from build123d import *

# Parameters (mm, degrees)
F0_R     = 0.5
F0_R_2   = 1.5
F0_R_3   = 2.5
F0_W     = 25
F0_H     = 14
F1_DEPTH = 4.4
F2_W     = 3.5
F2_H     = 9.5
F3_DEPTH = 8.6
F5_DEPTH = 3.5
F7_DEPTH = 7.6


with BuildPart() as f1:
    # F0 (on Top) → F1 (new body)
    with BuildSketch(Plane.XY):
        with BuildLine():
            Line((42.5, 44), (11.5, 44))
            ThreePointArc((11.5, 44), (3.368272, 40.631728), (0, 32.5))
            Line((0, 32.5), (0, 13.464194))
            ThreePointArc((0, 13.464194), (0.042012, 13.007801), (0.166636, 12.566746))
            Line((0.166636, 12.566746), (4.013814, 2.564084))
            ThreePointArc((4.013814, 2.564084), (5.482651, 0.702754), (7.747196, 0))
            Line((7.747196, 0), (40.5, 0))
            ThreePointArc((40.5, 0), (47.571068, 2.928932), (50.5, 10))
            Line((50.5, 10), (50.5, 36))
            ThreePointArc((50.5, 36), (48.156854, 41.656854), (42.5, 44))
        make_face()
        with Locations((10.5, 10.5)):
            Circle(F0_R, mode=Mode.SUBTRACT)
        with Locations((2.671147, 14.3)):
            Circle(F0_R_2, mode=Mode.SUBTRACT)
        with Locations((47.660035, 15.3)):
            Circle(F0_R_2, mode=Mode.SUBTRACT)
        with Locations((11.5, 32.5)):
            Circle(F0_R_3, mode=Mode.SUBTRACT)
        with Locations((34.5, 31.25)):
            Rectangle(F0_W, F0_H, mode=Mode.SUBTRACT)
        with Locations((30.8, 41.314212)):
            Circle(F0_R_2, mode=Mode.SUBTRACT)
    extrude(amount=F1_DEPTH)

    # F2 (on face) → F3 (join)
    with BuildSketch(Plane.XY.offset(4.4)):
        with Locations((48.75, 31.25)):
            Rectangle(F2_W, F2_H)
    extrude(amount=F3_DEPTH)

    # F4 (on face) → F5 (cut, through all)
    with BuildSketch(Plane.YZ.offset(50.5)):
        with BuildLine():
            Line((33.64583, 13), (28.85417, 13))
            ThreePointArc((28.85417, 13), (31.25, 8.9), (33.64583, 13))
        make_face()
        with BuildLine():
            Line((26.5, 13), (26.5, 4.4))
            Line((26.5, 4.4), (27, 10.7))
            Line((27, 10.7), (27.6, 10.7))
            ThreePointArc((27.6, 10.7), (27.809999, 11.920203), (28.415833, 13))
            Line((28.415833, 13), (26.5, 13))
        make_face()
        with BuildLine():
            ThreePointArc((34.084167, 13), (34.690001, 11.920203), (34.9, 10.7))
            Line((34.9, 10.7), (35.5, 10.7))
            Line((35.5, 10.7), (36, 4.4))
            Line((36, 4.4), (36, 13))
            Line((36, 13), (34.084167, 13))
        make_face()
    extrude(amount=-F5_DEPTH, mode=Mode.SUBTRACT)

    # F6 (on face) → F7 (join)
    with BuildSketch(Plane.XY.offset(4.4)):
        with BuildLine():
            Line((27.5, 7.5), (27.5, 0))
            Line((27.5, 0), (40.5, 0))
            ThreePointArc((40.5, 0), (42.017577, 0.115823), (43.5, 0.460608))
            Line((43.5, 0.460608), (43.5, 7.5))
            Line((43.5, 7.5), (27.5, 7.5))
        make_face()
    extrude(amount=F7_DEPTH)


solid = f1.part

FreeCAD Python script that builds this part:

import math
import FreeCAD as App
import Part
import Sketcher

doc = App.newDocument("Part")
body = doc.addObject("PartDesign::Body", "Body")

sketch1 = doc.addObject("Sketcher::SketchObject", "Sketch")
body.addObject(sketch1)
sketch1.AttachmentSupport = (doc.XY_Plane, [""])
sketch1.MapMode = "FlatFace"
sketch1.addGeometry([
    Part.LineSegment(App.Vector(42.5, 44, 0), App.Vector(11.5, 44, 0)),
    Part.ArcOfCircle(Part.Circle(App.Vector(11.5, 32.5, 0), App.Vector(0, 0, 1), 11.5), math.radians(90), math.radians(180)),
    Part.LineSegment(App.Vector(0, 32.5, 0), App.Vector(0, 13.464194, 0)),
    Part.ArcOfCircle(Part.Circle(App.Vector(2.500008, 13.464195, 0), App.Vector(0, 0, 1), 2.500008), math.radians(-179.999973), math.radians(-158.962521)),
    Part.LineSegment(App.Vector(0.166636, 12.566746, 0), App.Vector(4.013814, 2.564084, 0)),
    Part.ArcOfCircle(Part.Circle(App.Vector(7.747197, 4.000001, 0), App.Vector(0, 0, 1), 4.000001), math.radians(-158.962481), math.radians(-90.000021)),
    Part.LineSegment(App.Vector(7.747196, 0, 0), App.Vector(40.5, 0, 0)),
    Part.ArcOfCircle(Part.Circle(App.Vector(40.500001, 9.999999, 0), App.Vector(0, 0, 1), 9.999999), math.radians(-90.000004), math.radians(0.000004)),
    Part.LineSegment(App.Vector(50.5, 10, 0), App.Vector(50.5, 36, 0)),
    Part.ArcOfCircle(Part.Circle(App.Vector(42.499999, 35.999999, 0), App.Vector(0, 0, 1), 8.000001), math.radians(0.000006), math.radians(89.999994)),
    Part.Circle(App.Vector(10.5, 10.5, 0), App.Vector(0, 0, 1), 0.5),
    Part.Circle(App.Vector(2.671147, 14.3, 0), App.Vector(0, 0, 1), 1.5),
    Part.Circle(App.Vector(47.660035, 15.3, 0), App.Vector(0, 0, 1), 1.5),
    Part.Circle(App.Vector(11.5, 32.5, 0), App.Vector(0, 0, 1), 2.5),
    Part.LineSegment(App.Vector(47, 24.25, 0), App.Vector(22, 24.25, 0)),
    Part.LineSegment(App.Vector(22, 24.25, 0), App.Vector(22, 38.25, 0)),
    Part.LineSegment(App.Vector(22, 38.25, 0), App.Vector(47, 38.25, 0)),
    Part.LineSegment(App.Vector(47, 38.25, 0), App.Vector(47, 24.25, 0)),
    Part.Circle(App.Vector(30.8, 41.314212, 0), App.Vector(0, 0, 1), 1.5),
], False)
sketch1.addConstraint([
    Sketcher.Constraint("Tangent", 0, 2, 1, 1),
    Sketcher.Constraint("Tangent", 1, 2, 2, 1),
    Sketcher.Constraint("Tangent", 2, 2, 3, 1),
    Sketcher.Constraint("Tangent", 3, 2, 4, 1),
    Sketcher.Constraint("Tangent", 4, 2, 5, 1),
    Sketcher.Constraint("Tangent", 5, 2, 6, 1),
    Sketcher.Constraint("Tangent", 6, 2, 7, 1),
    Sketcher.Constraint("Tangent", 7, 2, 8, 1),
    Sketcher.Constraint("Tangent", 8, 2, 9, 1),
    Sketcher.Constraint("Tangent", 9, 2, 0, 1),
    Sketcher.Constraint("Coincident", 14, 2, 15, 1),
    Sketcher.Constraint("Coincident", 15, 2, 16, 1),
    Sketcher.Constraint("Coincident", 16, 2, 17, 1),
    Sketcher.Constraint("Coincident", 17, 2, 14, 1),
    Sketcher.Constraint("Horizontal", 0),
    Sketcher.Constraint("Vertical", 2),
    Sketcher.Constraint("Horizontal", 6),
    Sketcher.Constraint("Vertical", 8),
    Sketcher.Constraint("Horizontal", 14),
    Sketcher.Constraint("Vertical", 15),
    Sketcher.Constraint("Horizontal", 16),
    Sketcher.Constraint("Vertical", 17),
    Sketcher.Constraint("Coincident", 13, 3, 1, 3),
    Sketcher.Constraint("Equal", 11, 12),
    Sketcher.Constraint("Equal", 12, 18),
    Sketcher.Constraint("PointOnObject", 1, 2, -2),
    Sketcher.Constraint("PointOnObject", 5, 2, -1),
    Sketcher.Constraint("Diameter", 10, 1.0),
    Sketcher.Constraint("Diameter", 11, 3.0),
    Sketcher.Constraint("Diameter", 13, 5.0),
    Sketcher.Constraint("Radius", 5, 4.000001),
    Sketcher.Constraint("Radius", 7, 9.999999),
    Sketcher.Constraint("Radius", 9, 8.000001),
    Sketcher.Constraint("Radius", 1, 11.5),
    Sketcher.Constraint("DistanceX", 0, 2, 0, 1, 31.0),
    Sketcher.Constraint("DistanceX", 14, 2, 14, 1, 25.0),
    Sketcher.Constraint("DistanceY", 8, 1, 8, 2, 26.0),
    Sketcher.Constraint("DistanceY", 15, 1, 15, 2, 14.0),
    Sketcher.Constraint("DistanceX", -1, 1, 14, 2, 22.0),
    Sketcher.Constraint("DistanceX", 10, 3, 1, 3, 1.0),
    Sketcher.Constraint("DistanceY", 10, 3, 1, 3, 22.0),
    Sketcher.Constraint("DistanceY", -1, 1, 11, 3, 14.3),
    Sketcher.Constraint("DistanceY", -1, 1, 12, 3, 15.3),
    Sketcher.Constraint("DistanceX", -1, 1, 18, 3, 30.8),
    Sketcher.Constraint("DistanceY", -1, 1, 14, 2, 24.25),
    Sketcher.Constraint("Radius", 3, 2.500008),
    Sketcher.Constraint("DistanceX", 5, 3, 9, 3, 34.752802),
    Sketcher.Constraint("DistanceY", 2, 2, 2, 1, 19.035806),
    Sketcher.Constraint("DistanceY", -1, 1, 18, 3, 41.314212),
    Sketcher.Constraint("DistanceX", 3, 3, 11, 3, 0.171139),
    Sketcher.Constraint("DistanceX", -1, 1, 12, 3, 47.660035),
])
pad1 = doc.addObject("PartDesign::Pad", "Pad")
body.addObject(pad1)
pad1.Profile = sketch1
pad1.Length = 4.4

sketch2 = doc.addObject("Sketcher::SketchObject", "Sketch001")
body.addObject(sketch2)
sketch2.AttachmentSupport = (doc.XY_Plane, [""])
sketch2.MapMode = "FlatFace"
sketch2.AttachmentOffset = App.Placement(App.Vector(0, 0, 4.4), App.Rotation())
sketch2.addGeometry([
    Part.LineSegment(App.Vector(47, 36, 0), App.Vector(47, 26.5, 0)),
    Part.LineSegment(App.Vector(47, 26.5, 0), App.Vector(50.5, 26.5, 0)),
    Part.LineSegment(App.Vector(50.5, 26.5, 0), App.Vector(50.5, 36, 0)),
    Part.LineSegment(App.Vector(50.5, 36, 0), App.Vector(47, 36, 0)),
], False)
sketch2.addConstraint([
    Sketcher.Constraint("Coincident", 0, 2, 1, 1),
    Sketcher.Constraint("Coincident", 1, 2, 2, 1),
    Sketcher.Constraint("Coincident", 2, 2, 3, 1),
    Sketcher.Constraint("Coincident", 3, 2, 0, 1),
    Sketcher.Constraint("Vertical", 0),
    Sketcher.Constraint("Horizontal", 1),
    Sketcher.Constraint("Vertical", 2),
    Sketcher.Constraint("Horizontal", 3),
    Sketcher.Constraint("DistanceX", 1, 1, 1, 2, 3.5),
    Sketcher.Constraint("DistanceY", 0, 2, 0, 1, 9.5),
    Sketcher.Constraint("DistanceX", -1, 1, 0, 2, 47.0),
    Sketcher.Constraint("DistanceY", -1, 1, 2, 2, 36.0),
])
pad2 = doc.addObject("PartDesign::Pad", "Pad001")
body.addObject(pad2)
pad2.Profile = sketch2
pad2.Length = 8.6

sketch3 = doc.addObject("Sketcher::SketchObject", "Sketch002")
body.addObject(sketch3)
sketch3.AttachmentSupport = (doc.YZ_Plane, [""])
sketch3.MapMode = "FlatFace"
sketch3.AttachmentOffset = App.Placement(App.Vector(0, 0, 50.5), App.Rotation())
sketch3.addGeometry([
    Part.LineSegment(App.Vector(33.64583, 13, 0), App.Vector(28.85417, 13, 0)),
    Part.ArcOfCircle(Part.Circle(App.Vector(31.25, 11.65, 0), App.Vector(0, 0, 1), 2.75), math.radians(150.599655), math.radians(389.400345)),
    Part.LineSegment(App.Vector(26.5, 13, 0), App.Vector(26.5, 4.4, 0)),
    Part.LineSegment(App.Vector(26.5, 4.4, 0), App.Vector(27, 10.7, 0)),
    Part.LineSegment(App.Vector(27, 10.7, 0), App.Vector(27.6, 10.7, 0)),
    Part.ArcOfCircle(Part.Circle(App.Vector(31.249998, 10.700001, 0), App.Vector(0, 0, 1), 3.649998), math.radians(140.939771), math.radians(180.00002)),
    Part.LineSegment(App.Vector(28.415833, 13, 0), App.Vector(26.5, 13, 0)),
    Part.ArcOfCircle(Part.Circle(App.Vector(31.250002, 10.700001, 0), App.Vector(0, 0, 1), 3.649998), math.radians(-0.00002), math.radians(39.060229)),
    Part.LineSegment(App.Vector(34.9, 10.7, 0), App.Vector(35.5, 10.7, 0)),
    Part.LineSegment(App.Vector(35.5, 10.7, 0), App.Vector(36, 4.4, 0)),
    Part.LineSegment(App.Vector(36, 4.4, 0), App.Vector(36, 13, 0)),
    Part.LineSegment(App.Vector(36, 13, 0), App.Vector(34.084167, 13, 0)),
], False)
sketch3.addConstraint([
    Sketcher.Constraint("Coincident", 0, 1, 1, 2),
    Sketcher.Constraint("Coincident", 1, 1, 0, 2),
    Sketcher.Constraint("Coincident", 2, 2, 3, 1),
    Sketcher.Constraint("Coincident", 3, 2, 4, 1),
    Sketcher.Constraint("Coincident", 4, 2, 5, 2),
    Sketcher.Constraint("Coincident", 5, 1, 6, 1),
    Sketcher.Constraint("Coincident", 6, 2, 2, 1),
    Sketcher.Constraint("Coincident", 7, 1, 8, 1),
    Sketcher.Constraint("Coincident", 8, 2, 9, 1),
    Sketcher.Constraint("Coincident", 9, 2, 10, 1),
    Sketcher.Constraint("Coincident", 10, 2, 11, 1),
    Sketcher.Constraint("Coincident", 11, 2, 7, 2),
    Sketcher.Constraint("Horizontal", 0),
    Sketcher.Constraint("Vertical", 2),
    Sketcher.Constraint("Horizontal", 4),
    Sketcher.Constraint("Horizontal", 6),
    Sketcher.Constraint("Horizontal", 8),
    Sketcher.Constraint("Vertical", 10),
    Sketcher.Constraint("Horizontal", 11),
    Sketcher.Constraint("Coincident", 7, 3, 5, 3),
    Sketcher.Constraint("Equal", 5, 7),
    Sketcher.Constraint("Horizontal", 7, 3, 3, 2),
    Sketcher.Constraint("Horizontal", 1, 1, 5, 1),
    Sketcher.Constraint("Horizontal", 4, 2, 7, 1),
    Sketcher.Constraint("Horizontal", 2, 2, 9, 2),
    Sketcher.Constraint("Horizontal", 6, 2, 10, 2),
    Sketcher.Constraint("Vertical", 1, 3, 5, 3),
    Sketcher.Constraint("Equal", 4, 8),
    Sketcher.Constraint("Equal", 6, 11),
    Sketcher.Constraint("Radius", 1, 2.75),
    Sketcher.Constraint("Radius", 5, 3.649998),
    Sketcher.Constraint("DistanceX", 4, 1, 4, 2, 0.6),
    Sketcher.Constraint("DistanceY", 2, 2, 2, 1, 8.6),
    Sketcher.Constraint("DistanceY", -1, 1, 0, 1, 13.0),
    Sketcher.Constraint("DistanceX", -1, 1, 3, 2, 27.0),
    Sketcher.Constraint("DistanceX", -1, 1, 9, 2, 36.0),
    Sketcher.Constraint("DistanceY", -1, 1, 5, 3, 10.700001),
    Sketcher.Constraint("DistanceY", -1, 1, 1, 3, 11.65),
])
pocket1 = doc.addObject("PartDesign::Pocket", "Pocket")
body.addObject(pocket1)
pocket1.Profile = sketch3
pocket1.Type = "ThroughAll"

sketch4 = doc.addObject("Sketcher::SketchObject", "Sketch003")
body.addObject(sketch4)
sketch4.AttachmentSupport = (doc.XY_Plane, [""])
sketch4.MapMode = "FlatFace"
sketch4.AttachmentOffset = App.Placement(App.Vector(0, 0, 4.4), App.Rotation())
sketch4.addGeometry([
    Part.LineSegment(App.Vector(27.5, 7.5, 0), App.Vector(27.5, 0, 0)),
    Part.LineSegment(App.Vector(27.5, 0, 0), App.Vector(40.5, 0, 0)),
    Part.ArcOfCircle(Part.Circle(App.Vector(40.499997, 10.000021, 0), App.Vector(0, 0, 1), 10.000021), math.radians(-89.999981), math.radians(-72.542415)),
    Part.LineSegment(App.Vector(43.5, 0.460608, 0), App.Vector(43.5, 7.5, 0)),
    Part.LineSegment(App.Vector(43.5, 7.5, 0), App.Vector(27.5, 7.5, 0)),
], False)
sketch4.addConstraint([
    Sketcher.Constraint("Coincident", 0, 2, 1, 1),
    Sketcher.Constraint("Tangent", 1, 2, 2, 1),
    Sketcher.Constraint("Coincident", 2, 2, 3, 1),
    Sketcher.Constraint("Coincident", 3, 2, 4, 1),
    Sketcher.Constraint("Coincident", 4, 2, 0, 1),
    Sketcher.Constraint("Vertical", 0),
    Sketcher.Constraint("Horizontal", 1),
    Sketcher.Constraint("Vertical", 3),
    Sketcher.Constraint("Horizontal", 4),
    Sketcher.Constraint("PointOnObject", 0, 2, -1),
    Sketcher.Constraint("DistanceX", 1, 1, 1, 2, 13.0),
    Sketcher.Constraint("DistanceX", 4, 2, 4, 1, 16.0),
    Sketcher.Constraint("DistanceY", 0, 2, 0, 1, 7.5),
    Sketcher.Constraint("DistanceX", -1, 1, 0, 2, 27.5),
    Sketcher.Constraint("Radius", 2, 10.000021),
])
pad3 = doc.addObject("PartDesign::Pad", "Pad002")
body.addObject(pad3)
pad3.Profile = sketch4
pad3.Length = 7.6

doc.recompute()
